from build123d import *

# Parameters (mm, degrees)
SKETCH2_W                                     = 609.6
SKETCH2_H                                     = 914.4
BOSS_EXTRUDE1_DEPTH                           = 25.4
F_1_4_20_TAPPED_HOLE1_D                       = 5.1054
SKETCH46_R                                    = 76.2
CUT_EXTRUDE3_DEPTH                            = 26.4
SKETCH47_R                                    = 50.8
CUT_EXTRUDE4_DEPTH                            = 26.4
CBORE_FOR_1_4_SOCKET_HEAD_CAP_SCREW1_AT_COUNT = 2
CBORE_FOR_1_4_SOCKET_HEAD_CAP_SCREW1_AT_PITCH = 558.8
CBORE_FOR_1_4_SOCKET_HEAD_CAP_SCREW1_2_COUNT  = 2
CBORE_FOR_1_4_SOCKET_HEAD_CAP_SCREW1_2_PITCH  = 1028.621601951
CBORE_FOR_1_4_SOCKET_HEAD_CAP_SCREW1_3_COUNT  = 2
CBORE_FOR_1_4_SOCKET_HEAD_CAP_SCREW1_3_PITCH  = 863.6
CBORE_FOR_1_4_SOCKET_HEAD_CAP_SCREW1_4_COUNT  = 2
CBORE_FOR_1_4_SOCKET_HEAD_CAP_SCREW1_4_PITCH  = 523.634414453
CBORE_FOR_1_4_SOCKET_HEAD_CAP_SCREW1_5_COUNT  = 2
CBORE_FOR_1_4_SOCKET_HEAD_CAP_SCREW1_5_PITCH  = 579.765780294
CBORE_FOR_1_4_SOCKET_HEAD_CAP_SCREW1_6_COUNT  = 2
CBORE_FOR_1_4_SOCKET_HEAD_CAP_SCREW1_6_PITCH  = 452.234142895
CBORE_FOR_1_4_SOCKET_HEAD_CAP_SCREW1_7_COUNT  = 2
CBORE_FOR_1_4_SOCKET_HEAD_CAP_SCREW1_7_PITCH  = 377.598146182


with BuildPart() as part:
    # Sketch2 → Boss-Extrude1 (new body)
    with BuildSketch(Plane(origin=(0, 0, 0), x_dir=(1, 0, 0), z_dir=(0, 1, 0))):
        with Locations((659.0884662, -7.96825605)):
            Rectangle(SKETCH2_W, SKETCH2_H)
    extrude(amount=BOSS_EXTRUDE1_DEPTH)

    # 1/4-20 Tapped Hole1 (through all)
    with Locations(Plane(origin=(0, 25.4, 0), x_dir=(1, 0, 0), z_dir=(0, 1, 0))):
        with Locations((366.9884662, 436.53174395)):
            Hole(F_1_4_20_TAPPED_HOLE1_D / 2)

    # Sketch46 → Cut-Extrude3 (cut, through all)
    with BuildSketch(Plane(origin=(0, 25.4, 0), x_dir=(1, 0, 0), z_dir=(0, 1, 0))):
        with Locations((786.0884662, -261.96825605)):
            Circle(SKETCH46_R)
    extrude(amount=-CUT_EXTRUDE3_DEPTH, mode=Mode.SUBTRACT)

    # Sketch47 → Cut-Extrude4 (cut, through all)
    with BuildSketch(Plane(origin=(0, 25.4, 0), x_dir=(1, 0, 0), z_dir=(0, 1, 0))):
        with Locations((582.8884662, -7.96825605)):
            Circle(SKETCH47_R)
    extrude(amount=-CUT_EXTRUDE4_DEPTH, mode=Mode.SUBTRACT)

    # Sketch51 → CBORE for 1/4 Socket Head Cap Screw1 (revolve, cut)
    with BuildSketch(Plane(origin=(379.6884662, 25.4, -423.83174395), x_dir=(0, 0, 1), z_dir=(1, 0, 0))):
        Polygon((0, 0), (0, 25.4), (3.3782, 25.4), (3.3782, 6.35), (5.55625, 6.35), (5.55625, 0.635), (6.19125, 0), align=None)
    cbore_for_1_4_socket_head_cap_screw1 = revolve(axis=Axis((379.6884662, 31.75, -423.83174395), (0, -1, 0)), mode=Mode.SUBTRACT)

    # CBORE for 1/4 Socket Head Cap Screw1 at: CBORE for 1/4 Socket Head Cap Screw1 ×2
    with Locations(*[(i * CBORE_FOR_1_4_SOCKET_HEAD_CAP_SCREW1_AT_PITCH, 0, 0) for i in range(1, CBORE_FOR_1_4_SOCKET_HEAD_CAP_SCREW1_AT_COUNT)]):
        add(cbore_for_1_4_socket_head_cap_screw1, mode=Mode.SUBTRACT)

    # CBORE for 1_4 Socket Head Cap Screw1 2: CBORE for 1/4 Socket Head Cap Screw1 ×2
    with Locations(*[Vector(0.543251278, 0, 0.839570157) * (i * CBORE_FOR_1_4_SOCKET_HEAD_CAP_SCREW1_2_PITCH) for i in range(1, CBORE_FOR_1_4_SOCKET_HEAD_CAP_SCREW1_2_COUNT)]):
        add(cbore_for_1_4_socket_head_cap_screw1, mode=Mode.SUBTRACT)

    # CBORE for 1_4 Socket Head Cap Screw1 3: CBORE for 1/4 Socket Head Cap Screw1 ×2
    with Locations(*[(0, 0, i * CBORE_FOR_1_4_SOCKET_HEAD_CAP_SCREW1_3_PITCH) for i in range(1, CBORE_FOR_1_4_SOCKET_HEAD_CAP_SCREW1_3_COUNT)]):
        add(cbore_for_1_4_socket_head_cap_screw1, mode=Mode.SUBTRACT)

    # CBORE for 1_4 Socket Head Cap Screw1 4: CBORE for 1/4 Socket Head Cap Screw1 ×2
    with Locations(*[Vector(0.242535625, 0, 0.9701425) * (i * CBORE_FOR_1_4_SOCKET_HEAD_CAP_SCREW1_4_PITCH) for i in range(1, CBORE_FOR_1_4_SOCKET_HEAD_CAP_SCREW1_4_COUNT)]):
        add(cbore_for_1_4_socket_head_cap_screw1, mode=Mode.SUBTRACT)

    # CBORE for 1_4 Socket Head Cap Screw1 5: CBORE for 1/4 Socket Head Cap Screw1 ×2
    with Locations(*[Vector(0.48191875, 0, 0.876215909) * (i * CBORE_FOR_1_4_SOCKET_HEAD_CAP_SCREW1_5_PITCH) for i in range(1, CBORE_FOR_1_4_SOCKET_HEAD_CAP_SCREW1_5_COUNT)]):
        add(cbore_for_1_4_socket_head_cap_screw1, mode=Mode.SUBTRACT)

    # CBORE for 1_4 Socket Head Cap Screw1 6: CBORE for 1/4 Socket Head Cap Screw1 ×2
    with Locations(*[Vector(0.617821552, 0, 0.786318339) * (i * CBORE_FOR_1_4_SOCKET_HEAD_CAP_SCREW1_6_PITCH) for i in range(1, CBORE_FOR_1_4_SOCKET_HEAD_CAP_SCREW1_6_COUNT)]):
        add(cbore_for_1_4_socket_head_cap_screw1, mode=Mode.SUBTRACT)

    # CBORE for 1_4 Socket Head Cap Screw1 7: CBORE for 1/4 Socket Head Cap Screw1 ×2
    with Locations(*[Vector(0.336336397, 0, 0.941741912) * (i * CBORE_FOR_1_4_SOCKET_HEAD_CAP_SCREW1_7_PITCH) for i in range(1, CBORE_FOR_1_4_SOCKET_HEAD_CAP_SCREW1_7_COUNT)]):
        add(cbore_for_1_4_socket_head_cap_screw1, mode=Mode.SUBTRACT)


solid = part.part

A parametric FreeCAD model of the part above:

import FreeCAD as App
import Part
import Sketcher
Q = App.Units.Quantity

doc = App.newDocument("Part")
body = doc.addObject("PartDesign::Body", "Body")

sketch1 = doc.addObject("Sketcher::SketchObject", "Sketch")
body.addObject(sketch1)
sketch1.AttachmentSupport = (doc.XZ_Plane, [""])
sketch1.MapMode = "FlatFace"
sketch1.addGeometry(Part.LineSegment(App.Vector(354, -449, 0), App.Vector(354, 465, 0)), False)
sketch1.addGeometry(Part.LineSegment(App.Vector(354, 465, 0), App.Vector(964, 465, 0)), False)
sketch1.addGeometry(Part.LineSegment(App.Vector(964, 465, 0), App.Vector(964, -449, 0)), False)
sketch1.addGeometry(Part.LineSegment(App.Vector(964, -449, 0), App.Vector(354, -449, 0)), False)
sketch1.addConstraint(Sketcher.Constraint("Coincident", 0, 2, 1, 1))
sketch1.addConstraint(Sketcher.Constraint("Coincident", 1, 2, 2, 1))
sketch1.addConstraint(Sketcher.Constraint("Coincident", 2, 2, 3, 1))
sketch1.addConstraint(Sketcher.Constraint("Coincident", 3, 2, 0, 1))
sketch1.addConstraint(Sketcher.Constraint("Vertical", 0))
sketch1.addConstraint(Sketcher.Constraint("Horizontal", 1))
sketch1.addConstraint(Sketcher.Constraint("Vertical", 2))
sketch1.addConstraint(Sketcher.Constraint("Horizontal", 3))
sketch1.addConstraint(Sketcher.Constraint("DistanceX", 1, 1, 1, 2, Q("24 in")))
sketch1.addConstraint(Sketcher.Constraint("DistanceY", 0, 1, 0, 2, Q("36 in")))
sketch1.addConstraint(Sketcher.Constraint("DistanceX", -1, 1, 0, 2, Q("354.288466 mm")))
sketch1.addConstraint(Sketcher.Constraint("DistanceY", -1, 1, 0, 2, Q("465.168256 mm")))
pad1 = doc.addObject("PartDesign::Pad", "Pad")
body.addObject(pad1)
pad1.Profile = sketch1
pad1.Length = Q("1 in")
pad1.Reversed = True

sketch2 = doc.addObject("Sketcher::SketchObject", "Sketch001")
body.addObject(sketch2)
sketch2.AttachmentSupport = (doc.XZ_Plane, [""])
sketch2.MapMode = "FlatFace"
sketch2.AttachmentOffset = App.Placement(App.Vector(0, 0, -1 * 25.4), App.Rotation())
sketch2.addGeometry(Part.Circle(App.Vector(367, -436.5, 0), App.Vector(0, 0, 1), 2.6), False)
sketch2.addConstraint(Sketcher.Constraint("Diameter", 0, Q("0.201 in")))
sketch2.addConstraint(Sketcher.Constraint("DistanceX", -1, 1, 0, 3, Q("366.988466 mm")))
sketch2.addConstraint(Sketcher.Constraint("DistanceY", 0, 3, -1, 1, Q("436.531744 mm")))
doc.recompute()
hole = doc.addObject("PartDesign::Hole", "Hole")
body.addObject(hole)
hole.Profile = sketch2
hole.ThreadType = "None"
hole.Diameter = Q("0.201 in")
hole.DepthType = "ThroughAll"
hole.Reversed = True

sketch3 = doc.addObject("Sketcher::SketchObject", "Sketch002")
body.addObject(sketch3)
sketch3.AttachmentSupport = (doc.XZ_Plane, [""])
sketch3.MapMode = "FlatFace"
sketch3.AttachmentOffset = App.Placement(App.Vector(0, 0, -1 * 25.4), App.Rotation())
sketch3.addGeometry(Part.Circle(App.Vector(786, 262, 0), App.Vector(0, 0, 1), 76), False)
sketch3.addConstraint(Sketcher.Constraint("Diameter", 0, Q("6 in")))
sketch3.addConstraint(Sketcher.Constraint("DistanceX", -1, 1, 0, 3, Q("786.088466 mm")))
sketch3.addConstraint(Sketcher.Constraint("DistanceY", -1, 1, 0, 3, Q("261.968256 mm")))
pocket1 = doc.addObject("PartDesign::Pocket", "Pocket")
body.addObject(pocket1)
pocket1.Profile = sketch3
pocket1.Type = "ThroughAll"
pocket1.Reversed = True

sketch4 = doc.addObject("Sketcher::SketchObject", "Sketch003")
body.addObject(sketch4)
sketch4.AttachmentSupport = (doc.XZ_Plane, [""])
sketch4.MapMode = "FlatFace"
sketch4.AttachmentOffset = App.Placement(App.Vector(0, 0, -1 * 25.4), App.Rotation())
sketch4.addGeometry(Part.Circle(App.Vector(583, 8, 0), App.Vector(0, 0, 1), 51), False)
sketch4.addConstraint(Sketcher.Constraint("Diameter", 0, Q("4 in")))
sketch4.addConstraint(Sketcher.Constraint("DistanceX", -1, 1, 0, 3, Q("582.888466 mm")))
sketch4.addConstraint(Sketcher.Constraint("DistanceY", -1, 1, 0, 3, Q("7.968256 mm")))
pocket2 = doc.addObject("PartDesign::Pocket", "Pocket001")
body.addObject(pocket2)
pocket2.Profile = sketch4
pocket2.Type = "ThroughAll"
pocket2.Reversed = True

sketch5 = doc.addObject("Sketcher::SketchObject", "Sketch004")
body.addObject(sketch5)
sketch5.AttachmentSupport = (doc.YZ_Plane, [""])
sketch5.MapMode = "FlatFace"
sketch5.AttachmentOffset = App.Placement(App.Vector(0, 0, 379.688466), App.Rotation())
sketch5.addGeometry(Part.LineSegment(App.Vector(0, -423.8, 0), App.Vector(25.4, -423.8, 0)), False)
sketch5.addGeometry(Part.LineSegment(App.Vector(25.4, -423.8, 0), App.Vector(25.4, -417.6, 0)), False)
sketch5.addGeometry(Part.LineSegment(App.Vector(25.4, -417.6, 0), App.Vector(24.8, -418.3, 0)), False)
sketch5.addGeometry(Part.LineSegment(App.Vector(24.8, -418.3, 0), App.Vector(19.1, -418.3, 0)), False)
sketch5.addGeometry(Part.LineSegment(App.Vector(19.1, -418.3, 0), App.Vector(19.1, -420.5, 0)), False)
sketch5.addGeometry(Part.LineSegment(App.Vector(19.1, -420.5, 0), App.Vector(0, -420.5, 0)), False)
sketch5.addGeometry(Part.LineSegment(App.Vector(0, -420.5, 0), App.Vector(0, -423.8, 0)), False)
sketch5.addGeometry(Part.LineSegment(App.Vector(25.4, -423.8, 0), App.Vector(0, -423.8, 0)), True)
sketch5.addConstraint(Sketcher.Constraint("Coincident", 0, 2, 1, 1))
sketch5.addConstraint(Sketcher.Constraint("Coincident", 1, 2, 2, 1))
sketch5.addConstraint(Sketcher.Constraint("Coincident", 2, 2, 3, 1))
sketch5.addConstraint(Sketcher.Constraint("Coincident", 3, 2, 4, 1))
sketch5.addConstraint(Sketcher.Constraint("Coincident", 4, 2, 5, 1))
sketch5.addConstraint(Sketcher.Constraint("Coincident", 5, 2, 6, 1))
sketch5.addConstraint(Sketcher.Constraint("Coincident", 6, 2, 0, 1))
sketch5.addConstraint(Sketcher.Constraint("Horizontal", 0))
sketch5.addConstraint(Sketcher.Constraint("Vertical", 1))
sketch5.addConstraint(Sketcher.Constraint("Horizontal", 3))
sketch5.addConstraint(Sketcher.Constraint("Vertical", 4))
sketch5.addConstraint(Sketcher.Constraint("Horizontal", 5))
sketch5.addConstraint(Sketcher.Constraint("Vertical", 6))
sketch5.addConstraint(Sketcher.Constraint("Horizontal", 7))
sketch5.addConstraint(Sketcher.Constraint("Coincident", 7, 1, 0, 2))
sketch5.addConstraint(Sketcher.Constraint("PointOnObject", 5, 2, -2))
sketch5.addConstraint(Sketcher.Constraint("PointOnObject", 7, 2, -2))
sketch5.addConstraint(Sketcher.Constraint("DistanceX", 0, 1, 0, 2, Q("1 in")))
sketch5.addConstraint(Sketcher.Constraint("Angle", 2, Q("-135 deg")))
sketch5.addConstraint(Sketcher.Constraint("DistanceX", 5, 2, 5, 1, Q("0.75 in")))
sketch5.addConstraint(Sketcher.Constraint("DistanceX", 3, 2, 3, 1, Q("0.225 in")))
sketch5.addConstraint(Sketcher.Constraint("DistanceY", 6, 2, 6, 1, Q("0.133 in")))
sketch5.addConstraint(Sketcher.Constraint("DistanceY", 0, 2, 2, 2, Q("0.21875 in")))
sketch5.addConstraint(Sketcher.Constraint("DistanceY", 0, 2, -1, 1, Q("423.831744 mm")))
groove = doc.addObject("PartDesign::Groove", "Groove")
body.addObject(groove)
groove.Profile = sketch5
groove.ReferenceAxis = (sketch5, ["Axis0"])
groove.Angle = 360
doc.recompute()

linearpattern = doc.addObject("PartDesign::LinearPattern", "LinearPattern")
body.addObject(linearpattern)
linearpattern.Originals = [groove]
linearpattern.Direction = (doc.X_Axis, [""])
linearpattern.Mode = "offset"
linearpattern.Offset = Q("22 in")
linearpattern.Occurrences = 2
body.Tip = linearpattern
doc.recompute()

datumline = doc.addObject("PartDesign::Line", "DatumLine")
body.addObject(datumline)
datumline.Placement = App.Placement(App.Vector(0, 0, 0), App.Rotation(App.Vector(0, 0, 1), App.Vector(0.543251278, 0, 0.839570157)))
linearpattern2 = doc.addObject("PartDesign::LinearPattern", "LinearPattern001")
body.addObject(linearpattern2)
linearpattern2.Originals = [groove]
linearpattern2.Direction = (datumline, [""])
linearpattern2.Mode = "offset"
linearpattern2.Offset = 1028.621602
linearpattern2.Occurrences = 2
body.Tip = linearpattern2
doc.recompute()

linearpattern3 = doc.addObject("PartDesign::LinearPattern", "LinearPattern002")
body.addObject(linearpattern3)
linearpattern3.Originals = [groove]
linearpattern3.Direction = (doc.Z_Axis, [""])
linearpattern3.Mode = "offset"
linearpattern3.Offset = Q("34 in")
linearpattern3.Occurrences = 2
body.Tip = linearpattern3
doc.recompute()

datumline2 = doc.addObject("PartDesign::Line", "DatumLine001")
body.addObject(datumline2)
datumline2.Placement = App.Placement(App.Vector(0, 0, 0), App.Rotation(App.Vector(0, 0, 1), App.Vector(0.242535625, 0, 0.9701425)))
linearpattern4 = doc.addObject("PartDesign::LinearPattern", "LinearPattern003")
body.addObject(linearpattern4)
linearpattern4.Originals = [groove]
linearpattern4.Direction = (datumline2, [""])
linearpattern4.Mode = "offset"
linearpattern4.Offset = 523.634414
linearpattern4.Occurrences = 2
body.Tip = linearpattern4
doc.recompute()

datumline3 = doc.addObject("PartDesign::Line", "DatumLine002")
body.addObject(datumline3)
datumline3.Placement = App.Placement(App.Vector(0, 0, 0), App.Rotation(App.Vector(0, 0, 1), App.Vector(0.48191875, 0, 0.876215909)))
linearpattern5 = doc.addObject("PartDesign::LinearPattern", "LinearPattern004")
body.addObject(linearpattern5)
linearpattern5.Originals = [groove]
linearpattern5.Direction = (datumline3, [""])
linearpattern5.Mode = "offset"
linearpattern5.Offset = 579.765781
linearpattern5.Occurrences = 2
body.Tip = linearpattern5
doc.recompute()

datumline4 = doc.addObject("PartDesign::Line", "DatumLine003")
body.addObject(datumline4)
datumline4.Placement = App.Placement(App.Vector(0, 0, 0), App.Rotation(App.Vector(0, 0, 1), App.Vector(0.617821552, 0, 0.786318339)))
linearpattern6 = doc.addObject("PartDesign::LinearPattern", "LinearPattern005")
body.addObject(linearpattern6)
linearpattern6.Originals = [groove]
linearpattern6.Direction = (datumline4, [""])
linearpattern6.Mode = "offset"
linearpattern6.Offset = 452.234143
linearpattern6.Occurrences = 2
body.Tip = linearpattern6
doc.recompute()

datumline5 = doc.addObject("PartDesign::Line", "DatumLine004")
body.addObject(datumline5)
datumline5.Placement = App.Placement(App.Vector(0, 0, 0), App.Rotation(App.Vector(0, 0, 1), App.Vector(0.336336397, 0, 0.941741912)))
linearpattern7 = doc.addObject("PartDesign::LinearPattern", "LinearPattern006")
body.addObject(linearpattern7)
linearpattern7.Originals = [groove]
linearpattern7.Direction = (datumline5, [""])
linearpattern7.Mode = "offset"
linearpattern7.Offset = 377.598146
linearpattern7.Occurrences = 2
body.Tip = linearpattern7

doc.recompute()
